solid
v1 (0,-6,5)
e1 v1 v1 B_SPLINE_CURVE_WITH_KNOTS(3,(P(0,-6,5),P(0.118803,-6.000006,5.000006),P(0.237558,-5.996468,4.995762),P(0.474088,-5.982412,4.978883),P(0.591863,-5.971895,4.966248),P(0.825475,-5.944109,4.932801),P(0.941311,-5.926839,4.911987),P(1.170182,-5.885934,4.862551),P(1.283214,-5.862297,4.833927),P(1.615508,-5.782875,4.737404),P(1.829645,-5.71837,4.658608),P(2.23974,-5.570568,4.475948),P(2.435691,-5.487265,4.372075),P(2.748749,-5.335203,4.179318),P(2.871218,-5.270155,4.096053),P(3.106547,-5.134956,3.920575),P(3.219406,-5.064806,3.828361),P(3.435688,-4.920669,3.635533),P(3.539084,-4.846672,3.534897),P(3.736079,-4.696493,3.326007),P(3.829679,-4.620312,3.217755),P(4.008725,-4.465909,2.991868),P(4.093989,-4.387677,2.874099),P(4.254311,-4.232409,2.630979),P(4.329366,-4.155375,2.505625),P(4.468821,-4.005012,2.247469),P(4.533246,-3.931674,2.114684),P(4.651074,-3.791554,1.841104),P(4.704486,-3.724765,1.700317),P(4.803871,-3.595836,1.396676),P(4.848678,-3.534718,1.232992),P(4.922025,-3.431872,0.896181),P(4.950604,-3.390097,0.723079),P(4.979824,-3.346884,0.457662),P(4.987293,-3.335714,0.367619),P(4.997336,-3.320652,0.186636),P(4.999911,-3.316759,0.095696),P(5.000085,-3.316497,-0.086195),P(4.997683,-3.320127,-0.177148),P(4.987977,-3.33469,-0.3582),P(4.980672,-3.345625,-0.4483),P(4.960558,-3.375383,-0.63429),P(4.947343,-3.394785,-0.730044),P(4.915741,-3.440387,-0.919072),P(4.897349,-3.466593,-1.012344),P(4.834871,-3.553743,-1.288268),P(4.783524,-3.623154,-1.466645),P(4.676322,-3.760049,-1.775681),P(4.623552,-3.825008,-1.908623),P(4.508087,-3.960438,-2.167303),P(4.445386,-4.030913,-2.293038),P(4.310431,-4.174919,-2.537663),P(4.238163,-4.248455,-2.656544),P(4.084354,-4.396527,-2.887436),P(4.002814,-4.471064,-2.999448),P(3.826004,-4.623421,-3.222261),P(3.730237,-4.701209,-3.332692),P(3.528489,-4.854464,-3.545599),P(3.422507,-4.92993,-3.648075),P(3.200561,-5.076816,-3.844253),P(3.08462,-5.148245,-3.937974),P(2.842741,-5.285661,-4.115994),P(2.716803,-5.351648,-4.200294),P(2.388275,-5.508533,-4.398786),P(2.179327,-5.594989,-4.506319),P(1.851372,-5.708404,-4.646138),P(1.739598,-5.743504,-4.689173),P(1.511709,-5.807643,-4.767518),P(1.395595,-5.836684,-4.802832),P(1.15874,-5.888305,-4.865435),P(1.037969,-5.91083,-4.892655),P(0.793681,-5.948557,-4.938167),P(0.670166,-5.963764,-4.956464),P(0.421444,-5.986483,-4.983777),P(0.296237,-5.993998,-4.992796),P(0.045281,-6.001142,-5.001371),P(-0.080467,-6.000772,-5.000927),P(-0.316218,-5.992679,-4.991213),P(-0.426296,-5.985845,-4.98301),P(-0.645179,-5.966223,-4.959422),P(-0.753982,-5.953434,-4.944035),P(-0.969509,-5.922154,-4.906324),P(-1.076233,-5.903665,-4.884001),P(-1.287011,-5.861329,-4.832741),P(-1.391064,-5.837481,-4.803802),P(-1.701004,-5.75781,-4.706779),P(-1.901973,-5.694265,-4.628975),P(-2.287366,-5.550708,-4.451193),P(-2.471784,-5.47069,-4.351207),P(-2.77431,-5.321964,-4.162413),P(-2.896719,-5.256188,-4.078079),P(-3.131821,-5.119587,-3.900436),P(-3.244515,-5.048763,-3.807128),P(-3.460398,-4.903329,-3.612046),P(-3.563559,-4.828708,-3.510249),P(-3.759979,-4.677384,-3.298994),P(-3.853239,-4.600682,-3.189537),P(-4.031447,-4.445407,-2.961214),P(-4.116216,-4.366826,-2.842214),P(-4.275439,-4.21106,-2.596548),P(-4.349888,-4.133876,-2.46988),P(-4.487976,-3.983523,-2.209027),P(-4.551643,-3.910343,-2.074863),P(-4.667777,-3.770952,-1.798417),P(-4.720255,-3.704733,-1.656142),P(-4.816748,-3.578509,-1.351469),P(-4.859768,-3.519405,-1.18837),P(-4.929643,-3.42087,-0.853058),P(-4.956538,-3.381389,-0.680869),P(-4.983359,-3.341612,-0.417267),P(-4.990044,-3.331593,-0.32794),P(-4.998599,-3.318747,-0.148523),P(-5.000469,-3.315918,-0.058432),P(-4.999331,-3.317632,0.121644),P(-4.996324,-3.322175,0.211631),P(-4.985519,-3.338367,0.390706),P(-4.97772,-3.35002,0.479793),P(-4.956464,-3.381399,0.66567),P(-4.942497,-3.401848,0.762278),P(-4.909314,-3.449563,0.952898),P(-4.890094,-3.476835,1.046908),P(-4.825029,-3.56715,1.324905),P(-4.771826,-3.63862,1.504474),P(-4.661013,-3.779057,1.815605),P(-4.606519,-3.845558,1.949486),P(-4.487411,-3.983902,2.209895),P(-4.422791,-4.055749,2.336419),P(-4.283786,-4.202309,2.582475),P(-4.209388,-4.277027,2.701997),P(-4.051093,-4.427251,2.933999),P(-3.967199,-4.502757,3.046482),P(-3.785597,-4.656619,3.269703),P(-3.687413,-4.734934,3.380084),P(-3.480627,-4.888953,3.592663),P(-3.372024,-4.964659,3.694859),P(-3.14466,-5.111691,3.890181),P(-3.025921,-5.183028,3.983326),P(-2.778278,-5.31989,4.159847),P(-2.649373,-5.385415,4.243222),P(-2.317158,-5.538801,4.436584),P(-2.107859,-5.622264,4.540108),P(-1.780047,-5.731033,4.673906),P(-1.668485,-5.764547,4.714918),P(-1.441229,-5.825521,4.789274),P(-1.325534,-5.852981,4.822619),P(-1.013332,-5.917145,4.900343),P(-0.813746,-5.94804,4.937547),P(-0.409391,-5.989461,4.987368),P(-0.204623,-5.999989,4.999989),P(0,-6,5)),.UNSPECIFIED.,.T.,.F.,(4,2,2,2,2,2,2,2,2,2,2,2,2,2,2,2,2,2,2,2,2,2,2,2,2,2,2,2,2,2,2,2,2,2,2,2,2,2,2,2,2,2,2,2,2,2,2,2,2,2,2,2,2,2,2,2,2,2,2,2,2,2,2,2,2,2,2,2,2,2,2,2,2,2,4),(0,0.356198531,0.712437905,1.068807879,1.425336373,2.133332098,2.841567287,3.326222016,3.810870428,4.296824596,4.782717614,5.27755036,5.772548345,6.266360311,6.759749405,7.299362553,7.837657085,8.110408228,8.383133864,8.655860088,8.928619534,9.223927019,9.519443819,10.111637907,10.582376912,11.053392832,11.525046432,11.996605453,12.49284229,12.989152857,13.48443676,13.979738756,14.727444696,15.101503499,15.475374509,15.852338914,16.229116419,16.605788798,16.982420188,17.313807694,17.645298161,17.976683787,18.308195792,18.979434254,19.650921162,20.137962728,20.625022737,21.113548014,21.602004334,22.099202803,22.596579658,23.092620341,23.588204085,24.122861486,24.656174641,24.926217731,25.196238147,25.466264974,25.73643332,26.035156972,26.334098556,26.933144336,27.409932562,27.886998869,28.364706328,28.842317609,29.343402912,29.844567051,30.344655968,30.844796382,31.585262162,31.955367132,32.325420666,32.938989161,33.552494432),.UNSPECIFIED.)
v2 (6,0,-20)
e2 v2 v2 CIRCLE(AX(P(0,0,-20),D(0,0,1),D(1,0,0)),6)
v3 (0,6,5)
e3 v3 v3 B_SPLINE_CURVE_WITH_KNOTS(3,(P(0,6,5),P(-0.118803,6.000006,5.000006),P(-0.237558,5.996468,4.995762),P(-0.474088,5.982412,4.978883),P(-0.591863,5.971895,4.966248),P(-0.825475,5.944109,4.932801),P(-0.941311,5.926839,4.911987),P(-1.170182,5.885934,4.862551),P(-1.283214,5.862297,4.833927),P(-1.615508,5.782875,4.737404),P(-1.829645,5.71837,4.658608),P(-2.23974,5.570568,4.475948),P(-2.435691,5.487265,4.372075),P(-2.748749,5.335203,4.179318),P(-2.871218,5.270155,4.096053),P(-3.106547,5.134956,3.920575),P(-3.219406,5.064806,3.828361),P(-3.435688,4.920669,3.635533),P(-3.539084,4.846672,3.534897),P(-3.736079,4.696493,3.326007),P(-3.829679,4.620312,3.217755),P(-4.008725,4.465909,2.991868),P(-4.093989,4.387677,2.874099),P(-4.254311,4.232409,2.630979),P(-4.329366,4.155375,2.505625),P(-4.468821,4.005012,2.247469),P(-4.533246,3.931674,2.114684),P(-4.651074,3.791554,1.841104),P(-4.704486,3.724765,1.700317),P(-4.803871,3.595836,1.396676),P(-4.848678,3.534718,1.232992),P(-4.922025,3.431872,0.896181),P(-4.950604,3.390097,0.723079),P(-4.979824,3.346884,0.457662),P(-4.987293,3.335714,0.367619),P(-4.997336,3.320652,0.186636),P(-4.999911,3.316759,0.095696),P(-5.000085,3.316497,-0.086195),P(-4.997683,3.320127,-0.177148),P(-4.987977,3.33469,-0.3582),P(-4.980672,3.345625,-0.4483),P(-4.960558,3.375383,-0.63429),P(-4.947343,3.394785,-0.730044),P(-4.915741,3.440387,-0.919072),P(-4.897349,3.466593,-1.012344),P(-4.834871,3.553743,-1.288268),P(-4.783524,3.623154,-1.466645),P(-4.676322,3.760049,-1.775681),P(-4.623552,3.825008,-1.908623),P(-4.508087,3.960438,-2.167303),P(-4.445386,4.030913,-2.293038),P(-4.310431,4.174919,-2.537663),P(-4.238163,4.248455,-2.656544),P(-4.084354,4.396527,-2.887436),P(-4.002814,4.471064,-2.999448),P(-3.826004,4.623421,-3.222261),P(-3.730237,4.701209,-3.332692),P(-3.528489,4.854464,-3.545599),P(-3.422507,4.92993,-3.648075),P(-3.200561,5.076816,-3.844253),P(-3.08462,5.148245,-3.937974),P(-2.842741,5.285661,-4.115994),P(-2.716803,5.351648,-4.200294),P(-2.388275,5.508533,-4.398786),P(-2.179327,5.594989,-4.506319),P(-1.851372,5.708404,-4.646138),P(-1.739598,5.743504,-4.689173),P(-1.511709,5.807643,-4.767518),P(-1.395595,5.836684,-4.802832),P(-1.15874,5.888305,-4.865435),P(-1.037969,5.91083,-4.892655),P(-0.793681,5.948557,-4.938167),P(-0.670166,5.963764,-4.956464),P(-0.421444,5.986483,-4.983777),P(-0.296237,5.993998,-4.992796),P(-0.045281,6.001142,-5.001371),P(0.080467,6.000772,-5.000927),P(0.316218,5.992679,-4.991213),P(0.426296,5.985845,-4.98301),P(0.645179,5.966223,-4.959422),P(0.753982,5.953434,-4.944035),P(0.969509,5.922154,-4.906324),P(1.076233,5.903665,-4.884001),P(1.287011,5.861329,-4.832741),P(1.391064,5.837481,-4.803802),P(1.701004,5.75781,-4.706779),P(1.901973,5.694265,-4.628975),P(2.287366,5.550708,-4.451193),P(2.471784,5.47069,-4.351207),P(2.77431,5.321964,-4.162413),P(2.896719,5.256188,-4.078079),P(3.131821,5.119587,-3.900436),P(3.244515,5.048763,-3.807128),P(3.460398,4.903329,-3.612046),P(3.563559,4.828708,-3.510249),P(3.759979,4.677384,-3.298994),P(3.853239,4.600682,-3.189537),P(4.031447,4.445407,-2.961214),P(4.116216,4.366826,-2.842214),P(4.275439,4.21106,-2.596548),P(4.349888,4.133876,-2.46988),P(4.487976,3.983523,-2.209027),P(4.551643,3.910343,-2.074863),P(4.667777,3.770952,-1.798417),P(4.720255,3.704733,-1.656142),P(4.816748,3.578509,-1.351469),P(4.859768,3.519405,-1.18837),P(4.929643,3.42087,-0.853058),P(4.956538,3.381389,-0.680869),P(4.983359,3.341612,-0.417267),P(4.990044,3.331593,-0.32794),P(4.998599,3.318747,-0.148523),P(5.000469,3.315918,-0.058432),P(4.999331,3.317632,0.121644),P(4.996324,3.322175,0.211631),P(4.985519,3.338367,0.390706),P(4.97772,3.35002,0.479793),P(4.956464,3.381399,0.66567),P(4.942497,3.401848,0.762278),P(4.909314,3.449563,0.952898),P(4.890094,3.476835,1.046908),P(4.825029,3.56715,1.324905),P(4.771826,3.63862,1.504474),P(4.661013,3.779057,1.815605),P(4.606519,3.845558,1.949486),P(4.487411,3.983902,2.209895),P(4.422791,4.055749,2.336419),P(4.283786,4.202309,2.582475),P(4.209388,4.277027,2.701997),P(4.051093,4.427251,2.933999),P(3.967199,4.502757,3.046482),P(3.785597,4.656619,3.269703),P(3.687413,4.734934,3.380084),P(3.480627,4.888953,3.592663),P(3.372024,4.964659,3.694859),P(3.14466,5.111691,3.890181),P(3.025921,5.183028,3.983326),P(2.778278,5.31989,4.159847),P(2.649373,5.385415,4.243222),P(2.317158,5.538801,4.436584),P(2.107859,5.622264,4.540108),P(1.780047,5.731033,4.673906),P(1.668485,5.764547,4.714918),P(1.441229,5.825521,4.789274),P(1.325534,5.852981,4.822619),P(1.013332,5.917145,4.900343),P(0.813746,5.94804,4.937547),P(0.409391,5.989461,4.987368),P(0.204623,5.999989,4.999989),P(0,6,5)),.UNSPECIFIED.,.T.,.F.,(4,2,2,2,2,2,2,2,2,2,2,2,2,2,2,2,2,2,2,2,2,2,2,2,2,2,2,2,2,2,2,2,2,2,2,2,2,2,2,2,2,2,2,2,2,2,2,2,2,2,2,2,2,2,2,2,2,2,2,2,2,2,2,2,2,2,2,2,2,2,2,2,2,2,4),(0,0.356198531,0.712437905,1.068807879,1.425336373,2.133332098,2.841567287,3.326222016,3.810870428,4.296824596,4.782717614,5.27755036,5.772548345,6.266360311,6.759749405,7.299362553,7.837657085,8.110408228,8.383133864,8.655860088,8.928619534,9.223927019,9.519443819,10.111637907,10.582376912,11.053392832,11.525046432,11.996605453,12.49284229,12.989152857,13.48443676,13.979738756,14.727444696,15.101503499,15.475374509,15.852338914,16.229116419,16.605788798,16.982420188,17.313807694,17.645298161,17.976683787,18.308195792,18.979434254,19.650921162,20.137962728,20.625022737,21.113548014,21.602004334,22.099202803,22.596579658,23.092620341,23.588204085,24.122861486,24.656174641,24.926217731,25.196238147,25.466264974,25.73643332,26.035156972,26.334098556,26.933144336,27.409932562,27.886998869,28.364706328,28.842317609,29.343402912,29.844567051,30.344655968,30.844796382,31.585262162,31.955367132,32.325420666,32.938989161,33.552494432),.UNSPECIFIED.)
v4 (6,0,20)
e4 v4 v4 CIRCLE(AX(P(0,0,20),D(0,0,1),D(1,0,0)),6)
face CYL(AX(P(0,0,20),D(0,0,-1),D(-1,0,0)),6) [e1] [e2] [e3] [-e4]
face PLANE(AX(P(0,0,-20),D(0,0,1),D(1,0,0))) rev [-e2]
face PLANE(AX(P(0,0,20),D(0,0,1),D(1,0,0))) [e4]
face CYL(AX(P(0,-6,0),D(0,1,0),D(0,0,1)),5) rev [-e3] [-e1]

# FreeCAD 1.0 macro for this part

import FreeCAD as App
import Part
import Sketcher

doc = App.newDocument("Part")
body = doc.addObject("PartDesign::Body", "Body")

sketch1 = doc.addObject("Sketcher::SketchObject", "Sketch")
body.addObject(sketch1)
sketch1.AttachmentSupport = (doc.XY_Plane, [""])
sketch1.MapMode = "FlatFace"
sketch1.addGeometry(Part.Circle(App.Vector(0, 0, 0), App.Vector(0, 0, 1), 6), False)
sketch1.addConstraint(Sketcher.Constraint("Coincident", 0, 3, -1, 1))
sketch1.addConstraint(Sketcher.Constraint("Diameter", 0, 12.0))
pad1 = doc.addObject("PartDesign::Pad", "Pad")
body.addObject(pad1)
pad1.Profile = sketch1
pad1.Length = 40
pad1.Midplane = True

sketch2 = doc.addObject("Sketcher::SketchObject", "Sketch001")
body.addObject(sketch2)
sketch2.AttachmentSupport = (doc.XZ_Plane, [""])
sketch2.MapMode = "FlatFace"
sketch2.AttachmentOffset = App.Placement(App.Vector(0, 0, -6), App.Rotation())
sketch2.addGeometry(Part.Circle(App.Vector(0, 0, 0), App.Vector(0, 0, 1), 5), False)
sketch2.addConstraint(Sketcher.Constraint("Coincident", 0, 3, -1, 1))
sketch2.addConstraint(Sketcher.Constraint("Diameter", 0, 10.0))
pocket1 = doc.addObject("PartDesign::Pocket", "Pocket")
body.addObject(pocket1)
pocket1.Profile = sketch2
pocket1.Type = "ThroughAll"
pocket1.Reversed = True

doc.recompute()
